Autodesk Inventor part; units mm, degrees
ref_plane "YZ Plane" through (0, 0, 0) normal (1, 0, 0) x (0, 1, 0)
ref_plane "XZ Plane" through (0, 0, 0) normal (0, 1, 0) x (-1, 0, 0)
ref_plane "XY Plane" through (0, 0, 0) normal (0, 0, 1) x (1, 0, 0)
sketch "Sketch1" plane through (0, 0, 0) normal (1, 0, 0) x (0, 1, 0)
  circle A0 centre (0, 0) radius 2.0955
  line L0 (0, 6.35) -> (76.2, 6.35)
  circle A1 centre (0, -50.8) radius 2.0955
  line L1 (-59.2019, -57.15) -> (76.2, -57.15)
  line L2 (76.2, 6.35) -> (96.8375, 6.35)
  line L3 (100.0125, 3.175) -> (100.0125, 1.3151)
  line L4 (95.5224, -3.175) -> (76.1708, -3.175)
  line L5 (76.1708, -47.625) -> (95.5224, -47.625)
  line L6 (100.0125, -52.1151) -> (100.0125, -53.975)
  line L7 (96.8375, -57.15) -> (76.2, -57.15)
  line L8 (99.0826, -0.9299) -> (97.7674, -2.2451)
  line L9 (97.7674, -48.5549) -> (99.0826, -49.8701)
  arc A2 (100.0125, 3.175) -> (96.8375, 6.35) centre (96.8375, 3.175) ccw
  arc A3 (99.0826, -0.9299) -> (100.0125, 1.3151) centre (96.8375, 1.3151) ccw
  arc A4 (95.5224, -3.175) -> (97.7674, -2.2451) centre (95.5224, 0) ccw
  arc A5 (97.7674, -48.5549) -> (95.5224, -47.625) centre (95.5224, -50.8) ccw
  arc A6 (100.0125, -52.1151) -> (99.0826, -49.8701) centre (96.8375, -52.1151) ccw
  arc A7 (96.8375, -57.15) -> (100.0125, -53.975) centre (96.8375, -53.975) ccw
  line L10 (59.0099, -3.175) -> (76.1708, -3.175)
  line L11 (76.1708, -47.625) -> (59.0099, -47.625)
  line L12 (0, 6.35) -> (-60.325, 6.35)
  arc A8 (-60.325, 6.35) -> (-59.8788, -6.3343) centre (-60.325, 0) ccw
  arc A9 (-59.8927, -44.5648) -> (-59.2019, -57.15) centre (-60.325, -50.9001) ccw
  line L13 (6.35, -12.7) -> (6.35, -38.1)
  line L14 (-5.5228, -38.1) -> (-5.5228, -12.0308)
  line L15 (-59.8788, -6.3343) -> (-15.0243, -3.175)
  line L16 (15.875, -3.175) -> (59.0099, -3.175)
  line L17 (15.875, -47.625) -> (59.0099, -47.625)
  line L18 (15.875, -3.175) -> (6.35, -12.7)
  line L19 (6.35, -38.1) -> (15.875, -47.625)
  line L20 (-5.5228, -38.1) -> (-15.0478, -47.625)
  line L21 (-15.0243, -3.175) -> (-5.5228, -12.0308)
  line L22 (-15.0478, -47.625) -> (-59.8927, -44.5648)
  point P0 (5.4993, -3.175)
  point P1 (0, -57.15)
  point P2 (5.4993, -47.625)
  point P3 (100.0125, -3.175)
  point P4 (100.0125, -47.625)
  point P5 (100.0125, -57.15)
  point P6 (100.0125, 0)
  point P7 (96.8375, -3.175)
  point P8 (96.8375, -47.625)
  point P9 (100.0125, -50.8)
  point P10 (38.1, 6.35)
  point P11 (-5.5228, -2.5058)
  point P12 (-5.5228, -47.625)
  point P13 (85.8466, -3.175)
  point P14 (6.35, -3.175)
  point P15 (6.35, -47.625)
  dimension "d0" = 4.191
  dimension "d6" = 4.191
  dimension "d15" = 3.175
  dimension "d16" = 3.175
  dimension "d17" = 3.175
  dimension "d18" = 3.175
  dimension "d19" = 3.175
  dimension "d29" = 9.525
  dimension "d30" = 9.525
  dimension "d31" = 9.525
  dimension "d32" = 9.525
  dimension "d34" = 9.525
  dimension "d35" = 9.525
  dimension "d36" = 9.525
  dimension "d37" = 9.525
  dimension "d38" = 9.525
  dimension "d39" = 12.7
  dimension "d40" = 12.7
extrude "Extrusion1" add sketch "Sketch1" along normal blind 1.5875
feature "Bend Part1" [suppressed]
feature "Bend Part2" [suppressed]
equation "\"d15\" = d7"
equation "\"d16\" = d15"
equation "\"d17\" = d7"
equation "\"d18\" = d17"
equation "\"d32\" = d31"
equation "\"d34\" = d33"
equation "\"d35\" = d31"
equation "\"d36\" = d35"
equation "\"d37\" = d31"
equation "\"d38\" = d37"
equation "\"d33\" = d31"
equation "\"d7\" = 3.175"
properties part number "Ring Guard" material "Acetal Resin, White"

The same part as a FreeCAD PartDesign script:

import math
import FreeCAD as App
import Part
import Sketcher

V = App.Vector
Q = App.Units.Quantity

doc = App.newDocument("Part")
params = doc.addObject("Spreadsheet::Sheet", "Params")
for row, (alias, value) in enumerate([
    ("sketch1_radius", "0.25 in"),
    ("sketch1_diameter", "0.165 in"),
    ("sketch1_radius2", "0.125 in"),
    ("sketch1_height", "1 in"),
    ("sketch1_width", "6.1875 in"),
    ("pad1_length", "0.0625 in"),
], start=1):
    params.set(f"A{row}", alias)
    params.set(f"B{row}", "=" + value)
    params.setAlias(f"B{row}", alias)

body = doc.addObject("PartDesign::Body", "Body")

sketch1 = body.newObject("Sketcher::SketchObject", "Sketch")
sketch1.AttachmentSupport = (doc.getObject("YZ_Plane"), [""])
sketch1.MapMode = "FlatFace"
sketch1.addGeometry([
    Part.LineSegment(V(96.8, 6.3, 0), V(-60.3, 6.3, 0)),
    Part.ArcOfCircle(Part.Circle(V(-60.3, 0, 0), V(0, 0, 1), 6.3), math.radians(90), math.radians(274)),
    Part.LineSegment(V(-59.9, -6.3, 0), V(-15, -3.2, 0)),
    Part.LineSegment(V(-15, -3.2, 0), V(-5.5, -12, 0)),
    Part.LineSegment(V(-5.5, -12, 0), V(-5.5, -38.1, 0)),
    Part.LineSegment(V(-5.5, -38.1, 0), V(-15, -47.6, 0)),
    Part.LineSegment(V(-15, -47.6, 0), V(-59.9, -44.6, 0)),
    Part.ArcOfCircle(Part.Circle(V(-60.3, -50.9, 0), V(0, 0, 1), 6.4), math.radians(86), math.radians(280)),
    Part.LineSegment(V(-59.2, -57.1, 0), V(96.8, -57.1, 0)),
    Part.ArcOfCircle(Part.Circle(V(96.8, -54, 0), V(0, 0, 1), 3.2), math.radians(-90), math.radians(0)),
    Part.LineSegment(V(100, -54, 0), V(100, -52.1, 0)),
    Part.ArcOfCircle(Part.Circle(V(96.8, -52.1, 0), V(0, 0, 1), 3.2), math.radians(0), math.radians(45)),
    Part.LineSegment(V(99.1, -49.9, 0), V(97.8, -48.6, 0)),
    Part.ArcOfCircle(Part.Circle(V(95.5, -50.8, 0), V(0, 0, 1), 3.2), math.radians(45), math.radians(90)),
    Part.LineSegment(V(95.5, -47.6, 0), V(15.9, -47.6, 0)),
    Part.LineSegment(V(15.9, -47.6, 0), V(6.3, -38.1, 0)),
    Part.LineSegment(V(6.3, -38.1, 0), V(6.3, -12.7, 0)),
    Part.LineSegment(V(6.3, -12.7, 0), V(15.9, -3.2, 0)),
    Part.LineSegment(V(15.9, -3.2, 0), V(95.5, -3.2, 0)),
    Part.ArcOfCircle(Part.Circle(V(95.5, 0, 0), V(0, 0, 1), 3.2), math.radians(-90), math.radians(-45)),
    Part.LineSegment(V(97.8, -2.2, 0), V(99.1, -0.9, 0)),
    Part.ArcOfCircle(Part.Circle(V(96.8, 1.3, 0), V(0, 0, 1), 3.2), math.radians(-45), math.radians(0)),
    Part.LineSegment(V(100, 1.3, 0), V(100, 3.2, 0)),
    Part.ArcOfCircle(Part.Circle(V(96.8, 3.2, 0), V(0, 0, 1), 3.2), math.radians(0), math.radians(90)),
    Part.Circle(V(0, -50.8, 0), V(0, 0, 1), 2.1),
    Part.Circle(V(0, 0, 0), V(0, 0, 1), 2.1),
], False)
sketch1.addConstraint([
    Sketcher.Constraint("Tangent", 0, 2, 1, 1),
    Sketcher.Constraint("Tangent", 1, 2, 2, 1),
    Sketcher.Constraint("Coincident", 2, 2, 3, 1),
    Sketcher.Constraint("Coincident", 3, 2, 4, 1),
    Sketcher.Constraint("Coincident", 4, 2, 5, 1),
    Sketcher.Constraint("Coincident", 5, 2, 6, 1),
    Sketcher.Constraint("Tangent", 6, 2, 7, 1),
    Sketcher.Constraint("Coincident", 7, 2, 8, 1),
    Sketcher.Constraint("Tangent", 8, 2, 9, 1),
    Sketcher.Constraint("Tangent", 9, 2, 10, 1),
    Sketcher.Constraint("Tangent", 10, 2, 11, 1),
    Sketcher.Constraint("Tangent", 11, 2, 12, 1),
    Sketcher.Constraint("Tangent", 12, 2, 13, 1),
    Sketcher.Constraint("Tangent", 13, 2, 14, 1),
    Sketcher.Constraint("Coincident", 14, 2, 15, 1),
    Sketcher.Constraint("Coincident", 15, 2, 16, 1),
    Sketcher.Constraint("Coincident", 16, 2, 17, 1),
    Sketcher.Constraint("Coincident", 17, 2, 18, 1),
    Sketcher.Constraint("Tangent", 18, 2, 19, 1),
    Sketcher.Constraint("Tangent", 19, 2, 20, 1),
    Sketcher.Constraint("Tangent", 20, 2, 21, 1),
    Sketcher.Constraint("Tangent", 21, 2, 22, 1),
    Sketcher.Constraint("Tangent", 22, 2, 23, 1),
    Sketcher.Constraint("Tangent", 23, 2, 0, 1),
    Sketcher.Constraint("Horizontal", 0),
    Sketcher.Constraint("Vertical", 4),
    Sketcher.Constraint("Horizontal", 8),
    Sketcher.Constraint("Vertical", 10),
    Sketcher.Constraint("Horizontal", 14),
    Sketcher.Constraint("Vertical", 16),
    Sketcher.Constraint("Horizontal", 18),
    Sketcher.Constraint("Vertical", 22),
    Sketcher.Constraint("Coincident", 25, 3, -1, 1),
    Sketcher.Constraint("Equal", 1, 7),
    Sketcher.Constraint("Equal", 9, 11),
    Sketcher.Constraint("Equal", 11, 13),
    Sketcher.Constraint("Equal", 13, 19),
    Sketcher.Constraint("Equal", 19, 21),
    Sketcher.Constraint("Equal", 21, 23),
    Sketcher.Constraint("Equal", 24, 25),
    Sketcher.Constraint("PointOnObject", 1, 3, -1),
    Sketcher.Constraint("PointOnObject", 19, 3, -1),
    Sketcher.Constraint("PointOnObject", 24, 3, -2),
    Sketcher.Constraint("Perpendicular", 5, 12),
    Sketcher.Constraint("Parallel", 12, 15),
    Sketcher.Constraint("Perpendicular", 15, 17),
    Sketcher.Constraint("Parallel", 17, 20),
    Sketcher.Constraint("Horizontal", 13, 3, 24, 3),
    Sketcher.Constraint("Horizontal", 5, 2, 13, 2),
    Sketcher.Constraint("Horizontal", 4, 2, 15, 2),
    Sketcher.Constraint("Horizontal", 2, 2, 17, 2),
    Sketcher.Constraint("Vertical", 1, 3, 7, 3),
    Sketcher.Constraint("Vertical", 13, 3, 19, 3),
    Sketcher.Constraint("Vertical", 11, 3, 21, 3),
    Sketcher.Constraint("Vertical", 14, 2, 17, 2),
    Sketcher.Constraint("Vertical", 12, 2, 19, 2),
    Sketcher.Constraint("Equal", 10, 22),
    Sketcher.Constraint("Radius", 1, Q("0.25 in")),
    Sketcher.Constraint("Diameter", 24, Q("0.165 in")),
    Sketcher.Constraint("Radius", 9, Q("0.125 in")),
    Sketcher.Constraint("DistanceY", 16, 2, -1, 1, Q("0.5 in")),
    Sketcher.Constraint("DistanceY", 16, 1, 16, 2, Q("1 in")),
    Sketcher.Constraint("DistanceX", 0, 2, 0, 1, Q("6.1875 in")),
    Sketcher.Constraint("DistanceX", -1, 1, 15, 2, Q("0.25 in")),
    Sketcher.Constraint("Angle", 2, Q("4.029 deg")),
    Sketcher.Constraint("DistanceX", 1, 2, 3, 2, Q("2.14 in")),
    Sketcher.Constraint("DistanceX", 1, 3, -1, 1, Q("2.375 in")),
    Sketcher.Constraint("DistanceX", 8, 1, 8, 2, Q("156.0394 mm")),
    Sketcher.Constraint("DistanceX", 14, 2, 14, 1, Q("79.6474 mm")),
    Sketcher.Constraint("DistanceY", 4, 2, 4, 1, Q("26.0692 mm")),
])
sketch1.setExpression("Constraints[57]", "Params.sketch1_radius")
sketch1.setExpression("Constraints[58]", "Params.sketch1_diameter")
sketch1.setExpression("Constraints[59]", "Params.sketch1_radius2")
sketch1.setExpression("Constraints[61]", "Params.sketch1_height")
sketch1.setExpression("Constraints[62]", "Params.sketch1_width")
pad1 = body.newObject("PartDesign::Pad", "Pad")
pad1.Profile = sketch1
pad1.setExpression("Length", "Params.pad1_length")

doc.recompute()
